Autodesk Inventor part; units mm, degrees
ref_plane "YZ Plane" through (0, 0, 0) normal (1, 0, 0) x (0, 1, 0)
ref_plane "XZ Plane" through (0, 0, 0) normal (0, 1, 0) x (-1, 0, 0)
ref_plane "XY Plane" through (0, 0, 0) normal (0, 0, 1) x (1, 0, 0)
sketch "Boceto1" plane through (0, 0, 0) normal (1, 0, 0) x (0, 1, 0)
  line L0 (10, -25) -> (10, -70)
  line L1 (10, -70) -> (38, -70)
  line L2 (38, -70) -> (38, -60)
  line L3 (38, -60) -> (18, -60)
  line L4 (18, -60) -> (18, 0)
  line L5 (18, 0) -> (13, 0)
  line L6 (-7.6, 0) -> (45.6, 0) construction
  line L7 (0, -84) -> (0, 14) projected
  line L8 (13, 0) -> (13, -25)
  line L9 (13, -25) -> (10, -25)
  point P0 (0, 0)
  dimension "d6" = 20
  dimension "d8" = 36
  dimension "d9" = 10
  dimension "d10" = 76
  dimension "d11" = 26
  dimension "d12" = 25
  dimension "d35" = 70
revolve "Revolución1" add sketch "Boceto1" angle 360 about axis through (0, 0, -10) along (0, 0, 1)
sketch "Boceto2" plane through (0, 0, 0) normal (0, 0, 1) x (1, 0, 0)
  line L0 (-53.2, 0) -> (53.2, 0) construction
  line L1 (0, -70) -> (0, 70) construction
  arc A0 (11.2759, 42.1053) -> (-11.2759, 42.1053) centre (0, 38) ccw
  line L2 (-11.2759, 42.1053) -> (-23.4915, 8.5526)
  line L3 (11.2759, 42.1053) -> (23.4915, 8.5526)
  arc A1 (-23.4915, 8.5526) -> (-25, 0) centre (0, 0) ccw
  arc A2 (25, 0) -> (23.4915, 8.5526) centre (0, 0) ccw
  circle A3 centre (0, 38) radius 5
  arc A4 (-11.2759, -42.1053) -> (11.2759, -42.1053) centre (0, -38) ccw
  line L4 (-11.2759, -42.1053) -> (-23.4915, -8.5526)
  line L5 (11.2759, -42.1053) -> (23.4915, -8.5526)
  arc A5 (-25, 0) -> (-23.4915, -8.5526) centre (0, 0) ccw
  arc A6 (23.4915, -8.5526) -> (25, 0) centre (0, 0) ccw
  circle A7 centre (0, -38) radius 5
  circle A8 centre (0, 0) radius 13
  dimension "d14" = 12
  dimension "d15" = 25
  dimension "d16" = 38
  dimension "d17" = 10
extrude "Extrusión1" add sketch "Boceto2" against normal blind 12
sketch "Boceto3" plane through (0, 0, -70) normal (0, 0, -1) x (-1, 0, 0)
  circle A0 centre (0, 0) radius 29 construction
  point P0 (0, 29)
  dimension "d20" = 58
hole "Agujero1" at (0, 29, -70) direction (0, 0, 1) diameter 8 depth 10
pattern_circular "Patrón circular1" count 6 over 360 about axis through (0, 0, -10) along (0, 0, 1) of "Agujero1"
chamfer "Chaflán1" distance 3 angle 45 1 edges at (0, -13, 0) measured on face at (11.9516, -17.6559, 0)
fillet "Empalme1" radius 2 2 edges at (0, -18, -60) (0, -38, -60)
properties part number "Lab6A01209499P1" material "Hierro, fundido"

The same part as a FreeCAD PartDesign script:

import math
import FreeCAD as App
import Part
import Sketcher
from FreeCAD import Vector
Q = App.Units.Quantity


def edges_at(feature, points):
    """Names of the edges that pass closest to the given points."""
    edges = feature.Shape.Edges
    near = lambda p: min(range(len(edges)), key=lambda i: edges[i].distToShape(Part.Vertex(*p))[0])
    return sorted({f"Edge{near(p) + 1}" for p in points})

doc = App.newDocument("Part")
body = doc.addObject("PartDesign::Body", "Body")

# Sketch on YZ plane
sketch1 = doc.addObject("Sketcher::SketchObject", "Sketch")
body.addObject(sketch1)
sketch1.AttachmentSupport = (doc.YZ_Plane, [""])
sketch1.MapMode = "FlatFace"
sketch1.addGeometry(Part.LineSegment(Vector(13, -25, 0), Vector(10, -25, 0)), False)
sketch1.addGeometry(Part.LineSegment(Vector(10, -25, 0), Vector(10, -70, 0)), False)
sketch1.addGeometry(Part.LineSegment(Vector(10, -70, 0), Vector(38, -70, 0)), False)
sketch1.addGeometry(Part.LineSegment(Vector(38, -70, 0), Vector(38, -60, 0)), False)
sketch1.addGeometry(Part.LineSegment(Vector(38, -60, 0), Vector(18, -60, 0)), False)
sketch1.addGeometry(Part.LineSegment(Vector(18, -60, 0), Vector(18, 0, 0)), False)
sketch1.addGeometry(Part.LineSegment(Vector(18, 0, 0), Vector(13, 0, 0)), False)
sketch1.addGeometry(Part.LineSegment(Vector(13, 0, 0), Vector(13, -25, 0)), False)
sketch1.addConstraint(Sketcher.Constraint("Coincident", 0, 2, 1, 1))
sketch1.addConstraint(Sketcher.Constraint("Coincident", 1, 2, 2, 1))
sketch1.addConstraint(Sketcher.Constraint("Coincident", 2, 2, 3, 1))
sketch1.addConstraint(Sketcher.Constraint("Coincident", 3, 2, 4, 1))
sketch1.addConstraint(Sketcher.Constraint("Coincident", 4, 2, 5, 1))
sketch1.addConstraint(Sketcher.Constraint("Coincident", 5, 2, 6, 1))
sketch1.addConstraint(Sketcher.Constraint("Coincident", 6, 2, 7, 1))
sketch1.addConstraint(Sketcher.Constraint("Coincident", 7, 2, 0, 1))
sketch1.addConstraint(Sketcher.Constraint("Horizontal", 0))
sketch1.addConstraint(Sketcher.Constraint("Vertical", 1))
sketch1.addConstraint(Sketcher.Constraint("Horizontal", 2))
sketch1.addConstraint(Sketcher.Constraint("Vertical", 3))
sketch1.addConstraint(Sketcher.Constraint("Horizontal", 4))
sketch1.addConstraint(Sketcher.Constraint("Vertical", 5))
sketch1.addConstraint(Sketcher.Constraint("Horizontal", 6))
sketch1.addConstraint(Sketcher.Constraint("Vertical", 7))
sketch1.addConstraint(Sketcher.Constraint("PointOnObject", 5, 2, -1))
sketch1.addConstraint(Sketcher.Constraint("DistanceX", 4, 2, 4, 1, Q("20 mm")))
sketch1.addConstraint(Sketcher.Constraint("DistanceY", 3, 1, 3, 2, Q("10 mm")))
sketch1.addConstraint(Sketcher.Constraint("DistanceY", 7, 2, 7, 1, Q("25 mm")))
sketch1.addConstraint(Sketcher.Constraint("DistanceX", -1, 1, 0, 2, Q("10 mm")))
sketch1.addConstraint(Sketcher.Constraint("DistanceY", 1, 2, -1, 1, Q("70 mm")))
sketch1.addConstraint(Sketcher.Constraint("DistanceX", 6, 2, 3, 2, Q("25 mm")))
sketch1.addConstraint(Sketcher.Constraint("DistanceX", 0, 2, 0, 1, Q("3 mm")))
revolution = doc.addObject("PartDesign::Revolution", "Revolution")
body.addObject(revolution)
revolution.Profile = sketch1
revolution.ReferenceAxis = (sketch1, ["V_Axis"])
revolution.Angle = 360

# Sketch on XY plane
sketch2 = doc.addObject("Sketcher::SketchObject", "Sketch001")
body.addObject(sketch2)
sketch2.AttachmentSupport = (doc.XY_Plane, [""])
sketch2.MapMode = "FlatFace"
sketch2.addGeometry(Part.LineSegment(Vector(23.4915, 8.5526, 0), Vector(11.2759, 42.1053, 0)), False)
sketch2.addGeometry(Part.ArcOfCircle(Part.Circle(Vector(0, 38, 0), Vector(0, 0, 1), 11.999975), math.radians(20.00542), math.radians(159.99458)), False)
sketch2.addGeometry(Part.LineSegment(Vector(-11.2759, 42.1053, 0), Vector(-23.4915, 8.5526, 0)), False)
sketch2.addGeometry(Part.ArcOfCircle(Part.Circle(Vector(0.00157, -0.000421, 0), Vector(0, 0, 1), 25.00157), math.radians(159.995171), math.radians(179.999036)), False)
sketch2.addGeometry(Part.ArcOfCircle(Part.Circle(Vector(-0.001619, -0.000142, 0), Vector(0, 0, 1), 24.998381), math.radians(179.999675), math.radians(200.006118)), False)
sketch2.addGeometry(Part.LineSegment(Vector(-23.4915, -8.5526, 0), Vector(-11.2759, -42.1053, 0)), False)
sketch2.addGeometry(Part.ArcOfCircle(Part.Circle(Vector(0, -38, 0), Vector(0, 0, 1), 11.999975), math.radians(-159.99458), math.radians(-20.00542)), False)
sketch2.addGeometry(Part.LineSegment(Vector(11.2759, -42.1053, 0), Vector(23.4915, -8.5526, 0)), False)
sketch2.addGeometry(Part.ArcOfCircle(Part.Circle(Vector(-0.00157, 0.000421, 0), Vector(0, 0, 1), 25.00157), math.radians(-20.004829), math.radians(-0.000964)), False)
sketch2.addGeometry(Part.ArcOfCircle(Part.Circle(Vector(0.001619, 0.000142, 0), Vector(0, 0, 1), 24.998381), math.radians(-0.000325), math.radians(20.006118)), False)
sketch2.addGeometry(Part.Circle(Vector(0, -38, 0), Vector(0, 0, 1), 5), False)
sketch2.addGeometry(Part.Circle(Vector(0, 0, 0), Vector(0, 0, 1), 13), False)
sketch2.addGeometry(Part.Circle(Vector(0, 38, 0), Vector(0, 0, 1), 5), False)
sketch2.addConstraint(Sketcher.Constraint("Coincident", 0, 2, 1, 1))
sketch2.addConstraint(Sketcher.Constraint("Coincident", 1, 2, 2, 1))
sketch2.addConstraint(Sketcher.Constraint("Coincident", 2, 2, 3, 1))
sketch2.addConstraint(Sketcher.Constraint("Coincident", 3, 2, 4, 1))
sketch2.addConstraint(Sketcher.Constraint("Coincident", 4, 2, 5, 1))
sketch2.addConstraint(Sketcher.Constraint("Coincident", 5, 2, 6, 1))
sketch2.addConstraint(Sketcher.Constraint("Coincident", 6, 2, 7, 1))
sketch2.addConstraint(Sketcher.Constraint("Coincident", 7, 2, 8, 1))
sketch2.addConstraint(Sketcher.Constraint("Coincident", 8, 2, 9, 1))
sketch2.addConstraint(Sketcher.Constraint("Coincident", 9, 2, 0, 1))
sketch2.addConstraint(Sketcher.Constraint("Coincident", 11, 3, -1, 1))
sketch2.addConstraint(Sketcher.Constraint("Coincident", 10, 3, 6, 3))
sketch2.addConstraint(Sketcher.Constraint("Coincident", 12, 3, 1, 3))
sketch2.addConstraint(Sketcher.Constraint("PointOnObject", 1, 3, -2))
sketch2.addConstraint(Sketcher.Constraint("PointOnObject", 4, 3, -1))
sketch2.addConstraint(Sketcher.Constraint("PointOnObject", 6, 3, -2))
sketch2.addConstraint(Sketcher.Constraint("PointOnObject", 9, 3, -1))
sketch2.addConstraint(Sketcher.Constraint("PointOnObject", 3, 2, -1))
sketch2.addConstraint(Sketcher.Constraint("PointOnObject", 8, 2, -1))
sketch2.addConstraint(Sketcher.Constraint("Diameter", 10, Q("10 mm")))
sketch2.addConstraint(Sketcher.Constraint("Diameter", 12, Q("10 mm")))
sketch2.addConstraint(Sketcher.Constraint("Radius", 1, Q("12 mm")))
sketch2.addConstraint(Sketcher.Constraint("Radius", 6, Q("12 mm")))
sketch2.addConstraint(Sketcher.Constraint("Diameter", 11, Q("26 mm")))
sketch2.addConstraint(Sketcher.Constraint("DistanceY", -1, 1, 1, 3, Q("38 mm")))
sketch2.addConstraint(Sketcher.Constraint("DistanceY", 6, 3, -1, 1, Q("38 mm")))
sketch2.addConstraint(Sketcher.Constraint("DistanceX", 3, 2, -1, 1, Q("25 mm")))
sketch2.addConstraint(Sketcher.Constraint("DistanceX", -1, 1, 8, 2, Q("25 mm")))
sketch2.addConstraint(Sketcher.Constraint("Radius", 3, Q("25.0016 mm")))
sketch2.addConstraint(Sketcher.Constraint("Radius", 4, Q("24.9984 mm")))
sketch2.addConstraint(Sketcher.Constraint("Radius", 8, Q("25.0016 mm")))
sketch2.addConstraint(Sketcher.Constraint("Radius", 9, Q("24.9984 mm")))
sketch2.addConstraint(Sketcher.Constraint("DistanceY", 3, 3, 1, 3, Q("38.0004 mm")))
sketch2.addConstraint(Sketcher.Constraint("DistanceY", 8, 3, 1, 3, Q("37.9996 mm")))
sketch2.addConstraint(Sketcher.Constraint("DistanceX", 2, 2, 8, 3, Q("23.49 mm")))
sketch2.addConstraint(Sketcher.Constraint("DistanceX", 4, 2, 4, 3, Q("23.49 mm")))
sketch2.addConstraint(Sketcher.Constraint("DistanceX", 3, 3, 7, 2, Q("23.49 mm")))
sketch2.addConstraint(Sketcher.Constraint("DistanceX", 9, 3, 9, 2, Q("23.49 mm")))
sketch2.addConstraint(Sketcher.Constraint("DistanceX", -1, 1, 0, 2, Q("11.276 mm")))
sketch2.addConstraint(Sketcher.Constraint("DistanceX", 1, 2, -1, 1, Q("11.276 mm")))
sketch2.addConstraint(Sketcher.Constraint("DistanceX", 5, 2, -1, 1, Q("11.276 mm")))
sketch2.addConstraint(Sketcher.Constraint("DistanceX", -1, 1, 6, 2, Q("11.276 mm")))
pad1 = doc.addObject("PartDesign::Pad", "Pad")
body.addObject(pad1)
pad1.Profile = sketch2
pad1.Length = 12
pad1.Reversed = True

# Sketch on XY plane
sketch3 = doc.addObject("Sketcher::SketchObject", "Sketch002")
body.addObject(sketch3)
sketch3.AttachmentSupport = (doc.XY_Plane, [""])
sketch3.MapMode = "FlatFace"
sketch3.AttachmentOffset = App.Placement(Vector(0, 0, -70), App.Rotation())
sketch3.addGeometry(Part.Circle(Vector(0, 29, 0), Vector(0, 0, 1), 4), False)
sketch3.addConstraint(Sketcher.Constraint("PointOnObject", 0, 3, -2))
sketch3.addConstraint(Sketcher.Constraint("Diameter", 0, Q("8 mm")))
sketch3.addConstraint(Sketcher.Constraint("DistanceY", -1, 1, 0, 3, Q("29 mm")))
doc.recompute()
hole = doc.addObject("PartDesign::Hole", "Hole")
body.addObject(hole)
hole.Profile = sketch3
hole.ThreadType = "None"
hole.Diameter = 8
hole.DepthType = "Dimension"
hole.Depth = 10
hole.DrillPoint = "Flat"
hole.Reversed = True
doc.recompute()

polarpattern = doc.addObject("PartDesign::PolarPattern", "PolarPattern")
body.addObject(polarpattern)
polarpattern.Originals = [hole]
polarpattern.Axis = (doc.Z_Axis, [""])
polarpattern.Angle = 360
polarpattern.Occurrences = 6
body.Tip = polarpattern
doc.recompute()

chamfer = doc.addObject("PartDesign::Chamfer", "Chamfer")
body.addObject(chamfer)
chamfer.Base = (polarpattern, edges_at(polarpattern, [(0, -13, 0)]))
chamfer.Size = 3
doc.recompute()

fillet = doc.addObject("PartDesign::Fillet", "Fillet")
body.addObject(fillet)
fillet.Base = (chamfer, edges_at(chamfer, [(0, -18, -60), (0, -38, -60)]))
fillet.Radius = 2

doc.recompute()
